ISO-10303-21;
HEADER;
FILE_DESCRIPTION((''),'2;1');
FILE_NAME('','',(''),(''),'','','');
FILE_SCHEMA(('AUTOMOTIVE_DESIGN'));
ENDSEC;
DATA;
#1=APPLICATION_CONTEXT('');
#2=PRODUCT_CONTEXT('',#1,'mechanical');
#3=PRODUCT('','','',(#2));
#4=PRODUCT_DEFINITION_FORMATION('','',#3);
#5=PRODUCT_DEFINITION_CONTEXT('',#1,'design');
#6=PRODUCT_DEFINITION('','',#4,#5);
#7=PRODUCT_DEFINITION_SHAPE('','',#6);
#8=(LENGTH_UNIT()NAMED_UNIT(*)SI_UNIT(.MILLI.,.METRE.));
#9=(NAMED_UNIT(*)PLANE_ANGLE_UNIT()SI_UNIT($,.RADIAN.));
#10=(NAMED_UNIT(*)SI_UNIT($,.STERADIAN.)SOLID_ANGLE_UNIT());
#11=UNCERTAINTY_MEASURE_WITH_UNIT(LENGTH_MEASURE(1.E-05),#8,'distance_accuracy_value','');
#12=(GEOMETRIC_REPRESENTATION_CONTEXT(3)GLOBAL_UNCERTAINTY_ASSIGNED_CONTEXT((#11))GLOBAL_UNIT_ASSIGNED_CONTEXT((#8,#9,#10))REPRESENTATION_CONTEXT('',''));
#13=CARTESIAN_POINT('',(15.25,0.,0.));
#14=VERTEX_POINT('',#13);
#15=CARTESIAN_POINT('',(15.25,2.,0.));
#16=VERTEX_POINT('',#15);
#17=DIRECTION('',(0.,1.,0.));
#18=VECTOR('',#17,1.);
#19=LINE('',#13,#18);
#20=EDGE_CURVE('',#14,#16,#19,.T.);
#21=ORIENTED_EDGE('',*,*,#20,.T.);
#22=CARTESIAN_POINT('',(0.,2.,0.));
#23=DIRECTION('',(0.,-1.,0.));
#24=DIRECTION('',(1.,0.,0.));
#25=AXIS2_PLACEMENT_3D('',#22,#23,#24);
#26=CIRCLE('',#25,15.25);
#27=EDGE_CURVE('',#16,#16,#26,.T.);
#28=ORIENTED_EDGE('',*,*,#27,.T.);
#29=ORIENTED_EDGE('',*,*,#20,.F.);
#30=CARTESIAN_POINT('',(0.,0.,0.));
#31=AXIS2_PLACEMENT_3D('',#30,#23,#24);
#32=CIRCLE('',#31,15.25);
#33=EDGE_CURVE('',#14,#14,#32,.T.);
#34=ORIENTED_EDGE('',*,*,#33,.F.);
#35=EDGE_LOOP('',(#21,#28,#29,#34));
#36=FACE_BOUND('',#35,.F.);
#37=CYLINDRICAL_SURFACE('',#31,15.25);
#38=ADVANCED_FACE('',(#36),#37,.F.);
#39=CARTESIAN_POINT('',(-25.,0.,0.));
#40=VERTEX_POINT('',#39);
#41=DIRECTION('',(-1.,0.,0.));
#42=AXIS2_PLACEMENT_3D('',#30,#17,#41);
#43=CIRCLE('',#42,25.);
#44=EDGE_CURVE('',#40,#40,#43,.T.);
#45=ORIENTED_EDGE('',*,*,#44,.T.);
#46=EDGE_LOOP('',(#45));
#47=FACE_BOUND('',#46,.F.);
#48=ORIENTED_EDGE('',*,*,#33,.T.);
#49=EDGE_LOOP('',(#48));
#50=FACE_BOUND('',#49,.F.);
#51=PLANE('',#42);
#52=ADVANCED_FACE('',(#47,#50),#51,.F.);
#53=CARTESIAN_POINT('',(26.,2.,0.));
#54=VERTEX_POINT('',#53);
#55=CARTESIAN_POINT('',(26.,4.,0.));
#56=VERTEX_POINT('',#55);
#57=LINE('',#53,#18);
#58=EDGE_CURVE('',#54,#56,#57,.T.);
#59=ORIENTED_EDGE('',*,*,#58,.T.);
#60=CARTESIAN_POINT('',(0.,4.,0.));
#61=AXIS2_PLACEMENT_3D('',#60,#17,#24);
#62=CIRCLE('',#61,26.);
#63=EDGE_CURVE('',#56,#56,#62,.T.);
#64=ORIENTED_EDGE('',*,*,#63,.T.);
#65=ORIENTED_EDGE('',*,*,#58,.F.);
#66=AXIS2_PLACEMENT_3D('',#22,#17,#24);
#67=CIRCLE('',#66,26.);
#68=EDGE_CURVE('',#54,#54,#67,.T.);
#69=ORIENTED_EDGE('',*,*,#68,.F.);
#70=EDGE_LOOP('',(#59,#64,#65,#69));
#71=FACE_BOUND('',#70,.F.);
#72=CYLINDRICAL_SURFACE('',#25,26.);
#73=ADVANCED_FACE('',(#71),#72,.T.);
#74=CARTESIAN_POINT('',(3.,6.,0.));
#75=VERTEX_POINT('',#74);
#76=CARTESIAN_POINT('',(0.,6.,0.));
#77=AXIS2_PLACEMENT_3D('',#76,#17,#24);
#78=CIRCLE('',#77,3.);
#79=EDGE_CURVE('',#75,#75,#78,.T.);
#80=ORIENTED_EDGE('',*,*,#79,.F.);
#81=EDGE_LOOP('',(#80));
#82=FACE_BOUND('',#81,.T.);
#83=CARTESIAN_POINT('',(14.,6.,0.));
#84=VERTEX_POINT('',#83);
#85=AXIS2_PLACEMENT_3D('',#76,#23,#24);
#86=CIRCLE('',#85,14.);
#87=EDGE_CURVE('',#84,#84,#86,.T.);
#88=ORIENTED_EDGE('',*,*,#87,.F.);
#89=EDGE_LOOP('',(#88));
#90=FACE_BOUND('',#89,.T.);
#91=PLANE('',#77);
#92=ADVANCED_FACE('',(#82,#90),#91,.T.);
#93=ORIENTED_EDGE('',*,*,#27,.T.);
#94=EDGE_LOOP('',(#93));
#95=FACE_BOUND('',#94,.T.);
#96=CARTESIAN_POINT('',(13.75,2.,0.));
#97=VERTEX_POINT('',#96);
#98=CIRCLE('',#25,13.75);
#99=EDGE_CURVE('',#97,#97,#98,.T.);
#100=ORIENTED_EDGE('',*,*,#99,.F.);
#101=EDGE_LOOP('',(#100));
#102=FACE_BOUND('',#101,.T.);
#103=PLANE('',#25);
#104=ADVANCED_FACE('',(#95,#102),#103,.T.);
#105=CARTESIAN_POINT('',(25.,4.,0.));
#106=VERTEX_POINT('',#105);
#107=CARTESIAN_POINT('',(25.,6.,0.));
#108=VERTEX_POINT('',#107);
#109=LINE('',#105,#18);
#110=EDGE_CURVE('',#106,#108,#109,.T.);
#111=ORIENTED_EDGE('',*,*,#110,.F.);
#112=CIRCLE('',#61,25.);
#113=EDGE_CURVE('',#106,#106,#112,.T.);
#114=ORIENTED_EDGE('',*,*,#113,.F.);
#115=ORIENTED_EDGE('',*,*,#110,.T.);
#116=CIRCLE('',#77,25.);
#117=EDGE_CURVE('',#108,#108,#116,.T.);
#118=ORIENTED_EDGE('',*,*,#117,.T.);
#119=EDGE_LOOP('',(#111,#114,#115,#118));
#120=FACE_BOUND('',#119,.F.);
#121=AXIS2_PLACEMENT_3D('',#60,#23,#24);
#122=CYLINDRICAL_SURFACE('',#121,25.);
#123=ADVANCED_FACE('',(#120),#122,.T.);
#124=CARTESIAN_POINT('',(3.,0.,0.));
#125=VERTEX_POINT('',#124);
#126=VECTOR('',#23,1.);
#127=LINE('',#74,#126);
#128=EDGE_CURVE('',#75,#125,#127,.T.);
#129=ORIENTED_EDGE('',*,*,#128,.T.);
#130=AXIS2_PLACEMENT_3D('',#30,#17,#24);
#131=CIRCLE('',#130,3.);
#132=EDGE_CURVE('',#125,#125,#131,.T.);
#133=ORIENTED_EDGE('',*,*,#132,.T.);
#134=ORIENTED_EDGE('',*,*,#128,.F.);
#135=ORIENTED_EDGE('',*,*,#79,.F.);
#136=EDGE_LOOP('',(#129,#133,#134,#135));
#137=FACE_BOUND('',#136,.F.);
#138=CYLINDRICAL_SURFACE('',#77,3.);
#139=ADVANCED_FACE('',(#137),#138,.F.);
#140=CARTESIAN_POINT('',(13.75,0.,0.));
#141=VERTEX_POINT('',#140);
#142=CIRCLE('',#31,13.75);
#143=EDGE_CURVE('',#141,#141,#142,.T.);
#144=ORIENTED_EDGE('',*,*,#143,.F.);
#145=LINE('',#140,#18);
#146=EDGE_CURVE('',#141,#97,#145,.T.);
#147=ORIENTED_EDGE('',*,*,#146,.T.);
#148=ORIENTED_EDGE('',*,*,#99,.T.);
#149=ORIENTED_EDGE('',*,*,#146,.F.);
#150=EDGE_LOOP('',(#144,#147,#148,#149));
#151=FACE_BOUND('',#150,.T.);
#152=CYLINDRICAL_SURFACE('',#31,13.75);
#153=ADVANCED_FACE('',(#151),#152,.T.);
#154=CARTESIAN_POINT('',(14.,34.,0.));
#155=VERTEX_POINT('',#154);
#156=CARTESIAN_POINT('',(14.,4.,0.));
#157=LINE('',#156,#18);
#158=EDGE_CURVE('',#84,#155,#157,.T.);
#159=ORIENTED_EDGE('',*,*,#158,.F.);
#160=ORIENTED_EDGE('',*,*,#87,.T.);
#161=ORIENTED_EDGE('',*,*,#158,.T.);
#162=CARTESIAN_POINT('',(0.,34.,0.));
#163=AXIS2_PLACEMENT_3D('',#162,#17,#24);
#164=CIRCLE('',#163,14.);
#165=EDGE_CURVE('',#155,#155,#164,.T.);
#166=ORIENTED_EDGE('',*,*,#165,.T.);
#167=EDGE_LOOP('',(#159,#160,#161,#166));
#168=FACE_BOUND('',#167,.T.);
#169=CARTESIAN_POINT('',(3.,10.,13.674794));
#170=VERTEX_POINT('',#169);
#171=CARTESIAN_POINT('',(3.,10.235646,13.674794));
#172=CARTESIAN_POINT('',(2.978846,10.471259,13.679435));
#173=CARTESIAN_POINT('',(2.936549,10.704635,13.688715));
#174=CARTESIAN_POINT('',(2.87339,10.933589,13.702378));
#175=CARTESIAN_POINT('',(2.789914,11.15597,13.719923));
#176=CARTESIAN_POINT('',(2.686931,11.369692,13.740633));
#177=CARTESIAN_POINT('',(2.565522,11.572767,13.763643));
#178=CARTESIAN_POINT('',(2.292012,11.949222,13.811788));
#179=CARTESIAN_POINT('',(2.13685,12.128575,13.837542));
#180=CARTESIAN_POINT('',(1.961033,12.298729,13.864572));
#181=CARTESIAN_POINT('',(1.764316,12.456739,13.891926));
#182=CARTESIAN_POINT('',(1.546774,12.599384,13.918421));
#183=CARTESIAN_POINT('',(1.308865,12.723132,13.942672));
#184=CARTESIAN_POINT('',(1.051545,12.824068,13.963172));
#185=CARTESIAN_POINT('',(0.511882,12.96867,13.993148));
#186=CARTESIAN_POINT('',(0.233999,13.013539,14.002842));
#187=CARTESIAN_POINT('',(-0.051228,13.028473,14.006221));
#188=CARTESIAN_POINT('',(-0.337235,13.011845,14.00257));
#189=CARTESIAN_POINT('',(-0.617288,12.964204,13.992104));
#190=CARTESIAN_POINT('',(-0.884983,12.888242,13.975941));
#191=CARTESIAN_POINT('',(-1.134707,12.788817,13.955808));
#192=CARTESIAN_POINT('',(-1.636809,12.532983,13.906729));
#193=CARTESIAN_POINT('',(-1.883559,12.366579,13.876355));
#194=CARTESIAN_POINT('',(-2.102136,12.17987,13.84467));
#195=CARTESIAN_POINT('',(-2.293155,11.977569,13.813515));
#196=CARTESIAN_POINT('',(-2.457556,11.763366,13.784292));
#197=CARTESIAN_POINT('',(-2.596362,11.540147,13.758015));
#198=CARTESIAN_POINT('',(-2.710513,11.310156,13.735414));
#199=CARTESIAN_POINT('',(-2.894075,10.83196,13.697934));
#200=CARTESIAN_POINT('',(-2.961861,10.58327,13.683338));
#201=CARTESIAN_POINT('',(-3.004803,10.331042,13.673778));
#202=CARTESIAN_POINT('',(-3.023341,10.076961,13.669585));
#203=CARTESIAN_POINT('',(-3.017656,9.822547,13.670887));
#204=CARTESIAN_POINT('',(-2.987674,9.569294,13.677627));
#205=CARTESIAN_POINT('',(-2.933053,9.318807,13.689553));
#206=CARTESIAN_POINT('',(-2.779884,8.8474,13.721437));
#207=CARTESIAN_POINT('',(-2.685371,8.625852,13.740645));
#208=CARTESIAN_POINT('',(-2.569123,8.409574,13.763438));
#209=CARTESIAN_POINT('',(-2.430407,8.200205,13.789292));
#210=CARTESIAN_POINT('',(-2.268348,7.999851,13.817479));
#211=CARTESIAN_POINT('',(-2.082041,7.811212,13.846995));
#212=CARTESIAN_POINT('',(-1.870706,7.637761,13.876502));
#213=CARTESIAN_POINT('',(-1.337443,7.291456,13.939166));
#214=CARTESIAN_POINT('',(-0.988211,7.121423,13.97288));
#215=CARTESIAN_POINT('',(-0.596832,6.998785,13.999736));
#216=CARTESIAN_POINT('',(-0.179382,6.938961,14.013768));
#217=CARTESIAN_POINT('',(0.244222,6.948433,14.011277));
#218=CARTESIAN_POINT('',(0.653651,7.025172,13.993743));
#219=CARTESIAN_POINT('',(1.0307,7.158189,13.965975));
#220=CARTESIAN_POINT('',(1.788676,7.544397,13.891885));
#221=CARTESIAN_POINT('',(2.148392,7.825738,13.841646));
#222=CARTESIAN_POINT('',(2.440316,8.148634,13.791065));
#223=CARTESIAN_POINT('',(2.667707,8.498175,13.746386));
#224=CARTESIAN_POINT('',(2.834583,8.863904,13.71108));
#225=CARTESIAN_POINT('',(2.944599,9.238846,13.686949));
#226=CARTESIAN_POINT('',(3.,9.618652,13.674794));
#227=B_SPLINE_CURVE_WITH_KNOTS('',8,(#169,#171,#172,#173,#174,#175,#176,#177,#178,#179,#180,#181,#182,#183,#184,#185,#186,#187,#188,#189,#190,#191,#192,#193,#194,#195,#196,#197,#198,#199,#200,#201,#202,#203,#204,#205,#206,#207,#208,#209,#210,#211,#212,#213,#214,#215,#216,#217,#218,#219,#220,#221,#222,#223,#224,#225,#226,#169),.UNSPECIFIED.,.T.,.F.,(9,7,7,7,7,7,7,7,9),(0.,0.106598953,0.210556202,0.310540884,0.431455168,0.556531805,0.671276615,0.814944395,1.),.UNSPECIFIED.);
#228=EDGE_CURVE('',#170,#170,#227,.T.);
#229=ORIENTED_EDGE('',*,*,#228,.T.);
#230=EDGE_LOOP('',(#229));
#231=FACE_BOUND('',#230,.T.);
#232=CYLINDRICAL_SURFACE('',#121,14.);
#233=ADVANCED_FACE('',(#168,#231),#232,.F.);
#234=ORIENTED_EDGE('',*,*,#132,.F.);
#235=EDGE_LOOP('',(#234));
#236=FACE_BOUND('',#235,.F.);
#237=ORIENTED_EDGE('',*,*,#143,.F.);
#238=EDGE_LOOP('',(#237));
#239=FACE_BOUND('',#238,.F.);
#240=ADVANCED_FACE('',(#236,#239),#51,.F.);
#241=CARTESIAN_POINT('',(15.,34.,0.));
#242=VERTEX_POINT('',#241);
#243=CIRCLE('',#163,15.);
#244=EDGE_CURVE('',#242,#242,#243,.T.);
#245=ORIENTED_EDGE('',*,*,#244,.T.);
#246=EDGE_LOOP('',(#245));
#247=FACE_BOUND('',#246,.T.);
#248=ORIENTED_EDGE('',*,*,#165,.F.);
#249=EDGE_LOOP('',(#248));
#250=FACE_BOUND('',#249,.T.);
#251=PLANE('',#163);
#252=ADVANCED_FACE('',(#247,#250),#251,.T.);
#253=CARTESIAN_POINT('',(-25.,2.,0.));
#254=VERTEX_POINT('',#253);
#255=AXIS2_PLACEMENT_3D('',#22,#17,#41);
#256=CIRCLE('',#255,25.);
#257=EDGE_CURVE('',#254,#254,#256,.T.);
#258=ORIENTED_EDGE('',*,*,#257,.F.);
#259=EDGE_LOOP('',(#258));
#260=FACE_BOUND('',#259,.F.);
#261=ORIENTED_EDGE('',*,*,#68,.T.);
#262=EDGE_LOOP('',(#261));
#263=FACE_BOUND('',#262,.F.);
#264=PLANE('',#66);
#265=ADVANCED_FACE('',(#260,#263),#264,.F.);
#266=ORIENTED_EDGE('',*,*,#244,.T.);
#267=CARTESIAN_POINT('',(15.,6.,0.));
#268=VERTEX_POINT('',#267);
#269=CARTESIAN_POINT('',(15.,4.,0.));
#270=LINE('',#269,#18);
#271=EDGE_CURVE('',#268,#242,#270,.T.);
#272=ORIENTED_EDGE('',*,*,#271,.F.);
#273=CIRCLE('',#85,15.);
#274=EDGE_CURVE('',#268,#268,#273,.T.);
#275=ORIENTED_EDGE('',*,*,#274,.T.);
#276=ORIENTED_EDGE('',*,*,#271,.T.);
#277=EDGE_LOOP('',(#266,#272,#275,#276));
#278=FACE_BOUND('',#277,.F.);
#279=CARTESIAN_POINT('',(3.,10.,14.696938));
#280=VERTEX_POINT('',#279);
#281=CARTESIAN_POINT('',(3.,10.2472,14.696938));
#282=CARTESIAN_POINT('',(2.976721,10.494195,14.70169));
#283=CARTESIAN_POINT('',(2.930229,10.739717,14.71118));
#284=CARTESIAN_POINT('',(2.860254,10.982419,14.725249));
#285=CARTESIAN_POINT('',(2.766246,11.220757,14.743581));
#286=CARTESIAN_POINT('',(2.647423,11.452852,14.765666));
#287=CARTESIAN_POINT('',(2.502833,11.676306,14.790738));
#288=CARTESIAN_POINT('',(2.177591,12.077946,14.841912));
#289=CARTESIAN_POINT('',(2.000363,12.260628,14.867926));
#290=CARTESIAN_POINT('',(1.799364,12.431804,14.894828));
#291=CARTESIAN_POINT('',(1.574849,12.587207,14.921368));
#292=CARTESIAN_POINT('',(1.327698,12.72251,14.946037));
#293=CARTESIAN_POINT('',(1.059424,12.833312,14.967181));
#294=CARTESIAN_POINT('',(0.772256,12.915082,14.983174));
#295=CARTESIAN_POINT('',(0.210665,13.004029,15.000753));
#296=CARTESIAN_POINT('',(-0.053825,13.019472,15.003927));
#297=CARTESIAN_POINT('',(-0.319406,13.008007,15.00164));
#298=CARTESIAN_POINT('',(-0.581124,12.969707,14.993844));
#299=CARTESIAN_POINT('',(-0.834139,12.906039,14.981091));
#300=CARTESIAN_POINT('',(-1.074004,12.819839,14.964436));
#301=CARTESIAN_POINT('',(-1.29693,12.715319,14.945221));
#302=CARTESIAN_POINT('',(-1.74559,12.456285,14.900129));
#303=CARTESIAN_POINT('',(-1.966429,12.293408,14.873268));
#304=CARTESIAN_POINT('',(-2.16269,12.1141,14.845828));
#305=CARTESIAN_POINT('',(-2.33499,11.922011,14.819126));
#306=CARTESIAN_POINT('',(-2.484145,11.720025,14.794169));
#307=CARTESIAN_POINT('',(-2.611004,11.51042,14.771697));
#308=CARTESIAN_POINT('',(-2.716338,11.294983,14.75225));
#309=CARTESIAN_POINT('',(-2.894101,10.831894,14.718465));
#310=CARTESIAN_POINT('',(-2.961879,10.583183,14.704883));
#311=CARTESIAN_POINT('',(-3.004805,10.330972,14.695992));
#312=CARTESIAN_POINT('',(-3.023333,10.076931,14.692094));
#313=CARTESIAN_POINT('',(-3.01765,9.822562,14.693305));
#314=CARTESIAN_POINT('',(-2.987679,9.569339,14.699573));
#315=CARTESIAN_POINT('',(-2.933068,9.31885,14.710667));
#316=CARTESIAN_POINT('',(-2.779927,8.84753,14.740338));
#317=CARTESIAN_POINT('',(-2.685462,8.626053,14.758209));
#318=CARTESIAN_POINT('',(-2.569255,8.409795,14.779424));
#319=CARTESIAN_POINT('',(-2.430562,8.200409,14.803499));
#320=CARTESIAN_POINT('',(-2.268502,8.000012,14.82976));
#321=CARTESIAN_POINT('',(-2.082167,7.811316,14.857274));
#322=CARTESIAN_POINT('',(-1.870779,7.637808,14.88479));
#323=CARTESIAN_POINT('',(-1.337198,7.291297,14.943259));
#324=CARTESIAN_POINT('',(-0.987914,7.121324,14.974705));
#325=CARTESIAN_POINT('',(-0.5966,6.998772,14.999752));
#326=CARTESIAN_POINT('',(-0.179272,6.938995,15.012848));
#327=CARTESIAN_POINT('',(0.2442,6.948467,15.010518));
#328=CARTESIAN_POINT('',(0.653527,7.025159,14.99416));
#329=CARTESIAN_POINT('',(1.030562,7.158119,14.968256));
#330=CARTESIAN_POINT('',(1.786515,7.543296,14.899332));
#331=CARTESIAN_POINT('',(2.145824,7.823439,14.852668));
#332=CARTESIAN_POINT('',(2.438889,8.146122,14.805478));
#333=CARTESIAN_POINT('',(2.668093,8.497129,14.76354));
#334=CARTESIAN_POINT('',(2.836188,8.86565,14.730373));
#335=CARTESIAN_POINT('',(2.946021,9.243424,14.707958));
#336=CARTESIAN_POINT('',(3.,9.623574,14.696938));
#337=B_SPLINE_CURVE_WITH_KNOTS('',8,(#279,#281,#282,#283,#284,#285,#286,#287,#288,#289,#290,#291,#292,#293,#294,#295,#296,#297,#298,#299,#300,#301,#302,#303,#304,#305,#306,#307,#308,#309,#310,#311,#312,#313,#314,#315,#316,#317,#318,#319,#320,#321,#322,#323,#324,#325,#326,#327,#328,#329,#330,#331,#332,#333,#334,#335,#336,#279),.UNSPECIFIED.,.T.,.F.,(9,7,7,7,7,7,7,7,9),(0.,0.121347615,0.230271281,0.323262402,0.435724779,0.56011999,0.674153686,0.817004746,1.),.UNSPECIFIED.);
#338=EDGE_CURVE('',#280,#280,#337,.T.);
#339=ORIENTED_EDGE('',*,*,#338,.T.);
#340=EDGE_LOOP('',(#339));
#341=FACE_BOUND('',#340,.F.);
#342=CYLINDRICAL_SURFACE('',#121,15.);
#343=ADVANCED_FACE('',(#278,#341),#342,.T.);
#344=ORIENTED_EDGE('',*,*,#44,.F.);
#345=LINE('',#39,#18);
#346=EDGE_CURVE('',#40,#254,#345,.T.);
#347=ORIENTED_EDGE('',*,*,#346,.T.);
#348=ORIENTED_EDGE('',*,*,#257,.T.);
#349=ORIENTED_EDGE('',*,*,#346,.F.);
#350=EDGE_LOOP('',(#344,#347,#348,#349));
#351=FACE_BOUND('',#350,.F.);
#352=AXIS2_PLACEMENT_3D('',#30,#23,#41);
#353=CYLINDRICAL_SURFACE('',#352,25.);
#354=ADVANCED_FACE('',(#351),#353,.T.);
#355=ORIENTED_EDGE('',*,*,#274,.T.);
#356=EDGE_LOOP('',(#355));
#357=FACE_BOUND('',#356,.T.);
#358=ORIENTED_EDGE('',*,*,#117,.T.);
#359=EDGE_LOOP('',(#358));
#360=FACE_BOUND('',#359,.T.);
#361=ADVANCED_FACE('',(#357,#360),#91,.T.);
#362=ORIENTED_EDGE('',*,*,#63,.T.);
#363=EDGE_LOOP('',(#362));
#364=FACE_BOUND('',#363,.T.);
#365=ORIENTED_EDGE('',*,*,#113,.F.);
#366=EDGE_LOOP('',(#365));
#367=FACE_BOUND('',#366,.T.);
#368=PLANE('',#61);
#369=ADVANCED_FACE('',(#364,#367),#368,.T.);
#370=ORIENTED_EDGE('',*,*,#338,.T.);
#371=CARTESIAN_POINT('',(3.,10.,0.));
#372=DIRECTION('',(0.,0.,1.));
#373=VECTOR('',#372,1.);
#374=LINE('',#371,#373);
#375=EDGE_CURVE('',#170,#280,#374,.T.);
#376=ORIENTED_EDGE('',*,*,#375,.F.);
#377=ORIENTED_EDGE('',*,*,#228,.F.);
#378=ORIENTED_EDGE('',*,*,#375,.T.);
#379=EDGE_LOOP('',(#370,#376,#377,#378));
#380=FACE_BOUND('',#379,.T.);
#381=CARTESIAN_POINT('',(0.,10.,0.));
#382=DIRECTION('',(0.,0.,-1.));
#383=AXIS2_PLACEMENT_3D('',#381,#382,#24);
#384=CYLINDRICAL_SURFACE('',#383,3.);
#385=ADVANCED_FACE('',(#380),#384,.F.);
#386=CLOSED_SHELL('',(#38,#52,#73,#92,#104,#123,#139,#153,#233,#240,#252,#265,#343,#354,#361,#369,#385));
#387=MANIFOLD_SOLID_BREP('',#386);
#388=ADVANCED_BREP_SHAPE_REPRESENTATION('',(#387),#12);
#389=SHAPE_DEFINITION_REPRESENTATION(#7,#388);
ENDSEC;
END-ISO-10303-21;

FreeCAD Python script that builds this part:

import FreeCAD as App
import Part
import Sketcher
from FreeCAD import Vector

doc = App.newDocument("Part")
body = doc.addObject("PartDesign::Body", "Body")

sketch1 = body.newObject("Sketcher::SketchObject", "Sketch")
sketch1.AttachmentSupport = (doc.getObject("XZ_Plane"), [""])
sketch1.MapMode = "FlatFace"
sketch1.addGeometry(Part.Circle(Vector(0, 0, 0), Vector(0, 0, 1), 25), False)
sketch1.addConstraint(Sketcher.Constraint("Coincident", 0, 3, -1, 1))
sketch1.addConstraint(Sketcher.Constraint("Diameter", 0, 50.0))
pad1 = body.newObject("PartDesign::Pad", "Pad")
pad1.Profile = sketch1
pad1.Length = 2
pad1.Reversed = True

sketch2 = body.newObject("Sketcher::SketchObject", "Sketch001")
sketch2.AttachmentSupport = (doc.getObject("XZ_Plane"), [""])
sketch2.MapMode = "FlatFace"
sketch2.AttachmentOffset = App.Placement(Vector(0, 0, -2), App.Rotation())
sketch2.addGeometry(Part.Circle(Vector(0, 0, 0), Vector(0, 0, 1), 26), False)
sketch2.addConstraint(Sketcher.Constraint("Coincident", 0, 3, -1, 1))
sketch2.addConstraint(Sketcher.Constraint("Diameter", 0, 52.0))
pad2 = body.newObject("PartDesign::Pad", "Pad001")
pad2.Profile = sketch2
pad2.Length = 2
pad2.Reversed = True

sketch3 = body.newObject("Sketcher::SketchObject", "Sketch002")
sketch3.AttachmentSupport = (doc.getObject("XZ_Plane"), [""])
sketch3.MapMode = "FlatFace"
sketch3.AttachmentOffset = App.Placement(Vector(0, 0, -4), App.Rotation())
sketch3.addGeometry(Part.Circle(Vector(0, 0, 0), Vector(0, 0, 1), 25), False)
sketch3.addConstraint(Sketcher.Constraint("Coincident", 0, 3, -1, 1))
sketch3.addConstraint(Sketcher.Constraint("Diameter", 0, 50.0))
pad3 = body.newObject("PartDesign::Pad", "Pad002")
pad3.Profile = sketch3
pad3.Length = 2
pad3.Reversed = True

sketch4 = body.newObject("Sketcher::SketchObject", "Sketch003")
sketch4.AttachmentSupport = (doc.getObject("XZ_Plane"), [""])
sketch4.MapMode = "FlatFace"
sketch4.AttachmentOffset = App.Placement(Vector(0, 0, -4), App.Rotation())
sketch4.addGeometry(Part.Circle(Vector(0, 0, 0), Vector(0, 0, 1), 15), False)
sketch4.addGeometry(Part.Circle(Vector(0, 0, 0), Vector(0, 0, 1), 14), False)
sketch4.addConstraint(Sketcher.Constraint("Coincident", 0, 3, -1, 1))
sketch4.addConstraint(Sketcher.Constraint("Coincident", 1, 3, -1, 1))
sketch4.addConstraint(Sketcher.Constraint("Diameter", 0, 30.0))
sketch4.addConstraint(Sketcher.Constraint("Diameter", 1, 28.0))
pad4 = body.newObject("PartDesign::Pad", "Pad003")
pad4.Profile = sketch4
pad4.Length = 30
pad4.Reversed = True

sketch5 = body.newObject("Sketcher::SketchObject", "Sketch004")
sketch5.AttachmentSupport = (doc.getObject("XY_Plane"), [""])
sketch5.MapMode = "FlatFace"
sketch5.addGeometry(Part.Circle(Vector(0, 10, 0), Vector(0, 0, 1), 3), False)
sketch5.addConstraint(Sketcher.Constraint("PointOnObject", 0, 3, -2))
sketch5.addConstraint(Sketcher.Constraint("Diameter", 0, 6.0))
sketch5.addConstraint(Sketcher.Constraint("DistanceY", -1, 1, 0, 3, 10.0))
pocket1 = body.newObject("PartDesign::Pocket", "Pocket")
pocket1.Profile = sketch5
pocket1.Length = 30
pocket1.Reversed = True

sketch6 = body.newObject("Sketcher::SketchObject", "Sketch005")
sketch6.AttachmentSupport = (doc.getObject("XZ_Plane"), [""])
sketch6.MapMode = "FlatFace"
sketch6.AttachmentOffset = App.Placement(Vector(0, 0, -6), App.Rotation())
sketch6.addGeometry(Part.Circle(Vector(0, 0, 0), Vector(0, 0, 1), 3), False)
sketch6.addConstraint(Sketcher.Constraint("Coincident", 0, 3, -1, 1))
sketch6.addConstraint(Sketcher.Constraint("Diameter", 0, 6.0))
pocket2 = body.newObject("PartDesign::Pocket", "Pocket001")
pocket2.Profile = sketch6
pocket2.Type = "ThroughAll"
pocket2.Reversed = True

sketch7 = body.newObject("Sketcher::SketchObject", "Sketch006")
sketch7.AttachmentSupport = (doc.getObject("XZ_Plane"), [""])
sketch7.MapMode = "FlatFace"
sketch7.addGeometry(Part.Circle(Vector(0, 0, 0), Vector(0, 0, 1), 15), False)
sketch7.addGeometry(Part.Circle(Vector(0, 0, 0), Vector(0, 0, 1), 14), False)
sketch7.addConstraint(Sketcher.Constraint("Coincident", 0, 3, -1, 1))
sketch7.addConstraint(Sketcher.Constraint("Coincident", 1, 3, -1, 1))
sketch7.addConstraint(Sketcher.Constraint("Diameter", 0, 30.5))
sketch7.addConstraint(Sketcher.Constraint("Diameter", 1, 27.5))
pocket3 = body.newObject("PartDesign::Pocket", "Pocket002")
pocket3.Profile = sketch7
pocket3.Length = 2

doc.recompute()
